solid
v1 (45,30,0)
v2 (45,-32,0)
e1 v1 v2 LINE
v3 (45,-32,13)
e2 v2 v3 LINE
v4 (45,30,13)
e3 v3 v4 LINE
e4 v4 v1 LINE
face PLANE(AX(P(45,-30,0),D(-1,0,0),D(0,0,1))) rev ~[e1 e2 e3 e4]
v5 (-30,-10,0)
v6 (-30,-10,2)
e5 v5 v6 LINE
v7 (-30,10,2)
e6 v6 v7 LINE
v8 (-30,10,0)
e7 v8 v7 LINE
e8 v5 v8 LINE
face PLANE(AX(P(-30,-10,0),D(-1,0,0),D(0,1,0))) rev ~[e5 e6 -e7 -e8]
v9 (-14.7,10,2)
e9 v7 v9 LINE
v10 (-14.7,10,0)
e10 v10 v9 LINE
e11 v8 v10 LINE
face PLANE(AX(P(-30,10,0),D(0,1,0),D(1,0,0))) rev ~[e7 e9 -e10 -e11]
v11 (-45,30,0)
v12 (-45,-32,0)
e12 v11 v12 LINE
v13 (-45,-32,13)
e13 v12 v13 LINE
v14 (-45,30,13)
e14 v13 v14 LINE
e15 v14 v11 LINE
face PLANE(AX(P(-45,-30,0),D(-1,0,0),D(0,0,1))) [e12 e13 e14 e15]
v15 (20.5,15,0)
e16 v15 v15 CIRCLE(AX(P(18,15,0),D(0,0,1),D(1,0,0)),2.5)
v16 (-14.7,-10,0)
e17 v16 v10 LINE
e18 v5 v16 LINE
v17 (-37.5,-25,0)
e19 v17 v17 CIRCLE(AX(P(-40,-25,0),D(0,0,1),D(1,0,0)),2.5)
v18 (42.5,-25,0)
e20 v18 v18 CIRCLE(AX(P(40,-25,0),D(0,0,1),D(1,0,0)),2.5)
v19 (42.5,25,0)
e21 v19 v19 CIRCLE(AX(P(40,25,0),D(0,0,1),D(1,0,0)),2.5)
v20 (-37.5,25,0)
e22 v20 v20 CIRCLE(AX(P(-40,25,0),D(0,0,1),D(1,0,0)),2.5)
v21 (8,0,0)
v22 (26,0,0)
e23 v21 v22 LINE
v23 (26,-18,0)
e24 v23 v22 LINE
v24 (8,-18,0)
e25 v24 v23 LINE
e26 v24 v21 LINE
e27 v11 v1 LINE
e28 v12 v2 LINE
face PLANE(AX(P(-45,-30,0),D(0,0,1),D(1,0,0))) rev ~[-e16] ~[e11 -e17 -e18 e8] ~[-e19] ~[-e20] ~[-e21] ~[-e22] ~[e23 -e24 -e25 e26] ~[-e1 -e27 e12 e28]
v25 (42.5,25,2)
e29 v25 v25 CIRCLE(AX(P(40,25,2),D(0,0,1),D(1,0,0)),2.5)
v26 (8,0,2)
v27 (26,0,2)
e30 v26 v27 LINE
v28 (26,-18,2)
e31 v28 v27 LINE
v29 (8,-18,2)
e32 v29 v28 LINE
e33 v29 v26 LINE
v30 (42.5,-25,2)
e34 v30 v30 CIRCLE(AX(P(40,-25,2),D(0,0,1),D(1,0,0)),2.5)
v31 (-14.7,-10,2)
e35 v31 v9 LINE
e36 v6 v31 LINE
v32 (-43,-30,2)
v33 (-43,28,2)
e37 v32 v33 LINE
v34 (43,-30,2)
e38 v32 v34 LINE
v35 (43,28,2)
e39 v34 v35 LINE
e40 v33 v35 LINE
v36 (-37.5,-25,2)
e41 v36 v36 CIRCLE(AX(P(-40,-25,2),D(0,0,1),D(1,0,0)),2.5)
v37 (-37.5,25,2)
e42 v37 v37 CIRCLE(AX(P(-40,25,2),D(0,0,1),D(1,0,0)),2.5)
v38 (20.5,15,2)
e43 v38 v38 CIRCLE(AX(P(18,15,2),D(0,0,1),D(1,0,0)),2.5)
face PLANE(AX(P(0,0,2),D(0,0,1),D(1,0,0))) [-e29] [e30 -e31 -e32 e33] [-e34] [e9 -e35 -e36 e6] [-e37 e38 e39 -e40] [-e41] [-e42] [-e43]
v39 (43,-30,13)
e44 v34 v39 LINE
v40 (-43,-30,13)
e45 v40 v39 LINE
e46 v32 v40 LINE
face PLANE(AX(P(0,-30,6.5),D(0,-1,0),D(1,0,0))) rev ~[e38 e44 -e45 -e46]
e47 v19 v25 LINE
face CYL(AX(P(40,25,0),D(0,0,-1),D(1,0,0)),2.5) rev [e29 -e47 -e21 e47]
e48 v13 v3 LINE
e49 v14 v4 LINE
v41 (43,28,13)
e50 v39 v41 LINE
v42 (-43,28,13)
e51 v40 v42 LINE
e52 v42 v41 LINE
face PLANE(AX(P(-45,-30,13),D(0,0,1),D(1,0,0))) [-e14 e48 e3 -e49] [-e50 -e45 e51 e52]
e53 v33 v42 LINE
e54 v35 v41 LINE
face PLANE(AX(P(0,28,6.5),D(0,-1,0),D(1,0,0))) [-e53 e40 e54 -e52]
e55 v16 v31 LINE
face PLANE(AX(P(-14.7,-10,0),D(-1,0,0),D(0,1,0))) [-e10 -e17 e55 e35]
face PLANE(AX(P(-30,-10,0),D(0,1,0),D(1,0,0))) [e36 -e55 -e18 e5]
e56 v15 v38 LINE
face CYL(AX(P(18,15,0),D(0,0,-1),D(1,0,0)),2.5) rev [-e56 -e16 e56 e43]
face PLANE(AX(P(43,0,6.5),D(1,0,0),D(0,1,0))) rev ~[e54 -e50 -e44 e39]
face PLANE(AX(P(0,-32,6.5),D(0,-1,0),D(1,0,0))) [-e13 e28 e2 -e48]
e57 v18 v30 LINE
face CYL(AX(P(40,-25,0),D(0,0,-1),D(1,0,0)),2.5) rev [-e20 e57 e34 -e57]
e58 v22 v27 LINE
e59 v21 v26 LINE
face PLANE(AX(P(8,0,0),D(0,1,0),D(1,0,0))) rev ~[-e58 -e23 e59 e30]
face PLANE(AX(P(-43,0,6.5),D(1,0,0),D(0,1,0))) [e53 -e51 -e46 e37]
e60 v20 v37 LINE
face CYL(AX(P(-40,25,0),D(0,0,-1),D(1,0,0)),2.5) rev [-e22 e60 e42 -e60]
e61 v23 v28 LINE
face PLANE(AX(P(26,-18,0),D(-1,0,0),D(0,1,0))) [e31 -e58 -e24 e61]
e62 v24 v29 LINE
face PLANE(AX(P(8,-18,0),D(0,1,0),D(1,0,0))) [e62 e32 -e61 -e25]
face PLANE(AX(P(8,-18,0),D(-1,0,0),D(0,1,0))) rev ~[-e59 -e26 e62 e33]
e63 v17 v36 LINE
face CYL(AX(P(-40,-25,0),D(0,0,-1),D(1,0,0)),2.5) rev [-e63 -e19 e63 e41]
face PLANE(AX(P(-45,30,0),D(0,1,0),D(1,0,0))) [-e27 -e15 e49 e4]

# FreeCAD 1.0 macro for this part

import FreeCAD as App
import Part
import Sketcher
from FreeCAD import Vector


def add_polygon(sketch, points):
    """Adds a closed chain of lines whose ends are joined by coincident constraints."""
    first, n = sketch.GeometryCount, len(points)
    for a, b in zip(points, points[1:] + points[:1]):
        sketch.addGeometry(Part.LineSegment(App.Vector(*a, 0), App.Vector(*b, 0)), False)
    for i in range(n):
        sketch.addConstraint(Sketcher.Constraint("Coincident", first + i, 2, first + (i + 1) % n, 1))

doc = App.newDocument("Part")
body = doc.addObject("PartDesign::Body", "Body")

sketch1 = doc.addObject("Sketcher::SketchObject", "Sketch")
body.addObject(sketch1)
sketch1.AttachmentSupport = (doc.XZ_Plane, [""])
sketch1.MapMode = "FlatFace"
add_polygon(sketch1, [(-45, 13), (-45, 0), (45, 0), (45, 13)])
sketch1.addConstraint([
    Sketcher.Constraint("Vertical", 0),
    Sketcher.Constraint("Horizontal", 1),
    Sketcher.Constraint("Vertical", 2),
    Sketcher.Constraint("Horizontal", 3),
    Sketcher.Constraint("Symmetric", 0, 2, 1, 2, -1, 1),
    Sketcher.Constraint("DistanceX", 1, 1, 1, 2, 90.0),
    Sketcher.Constraint("DistanceY", 0, 2, 0, 1, 13.0),
])
pad1 = doc.addObject("PartDesign::Pad", "Pad")
body.addObject(pad1)
pad1.Profile = sketch1
pad1.Length = 2
body2 = doc.addObject("PartDesign::Body", "Body001")
doc.recompute()

body.Placement = App.Placement(Vector(0, -30, 0), App.Rotation(Vector(0, 0, 1), 0))
boolean = doc.addObject("PartDesign::Boolean", "Boolean")
body2.addObject(boolean)
boolean.Type = "Fuse"
boolean.addObjects([body])
body3 = doc.addObject("PartDesign::Body", "Body002")

sketch2 = doc.addObject("Sketcher::SketchObject", "Sketch001")
body3.addObject(sketch2)
sketch2.AttachmentSupport = (doc.getObject("YZ_Plane002"), [""])
sketch2.MapMode = "FlatFace"
add_polygon(sketch2, [(-30, 13), (-30, 0), (30, 0), (30, 13)])
sketch2.addConstraint([
    Sketcher.Constraint("Vertical", 0),
    Sketcher.Constraint("Horizontal", 1),
    Sketcher.Constraint("Vertical", 2),
    Sketcher.Constraint("Horizontal", 3),
    Sketcher.Constraint("Symmetric", 0, 2, 1, 2, -1, 1),
    Sketcher.Constraint("DistanceX", 1, 1, 1, 2, 60.0),
    Sketcher.Constraint("DistanceY", 0, 2, 0, 1, 13.0),
])
pad2 = doc.addObject("PartDesign::Pad", "Pad001")
body3.addObject(pad2)
pad2.Profile = sketch2
pad2.Length = 2
body4 = doc.addObject("PartDesign::Body", "Body003")
doc.recompute()

body3.Placement = App.Placement(Vector(43, 0, 0), App.Rotation(Vector(0, 0, 1), 0))
boolean2 = doc.addObject("PartDesign::Boolean", "Boolean001")
body4.addObject(boolean2)
boolean2.Type = "Fuse"
boolean2.addObjects([body3])
body5 = doc.addObject("PartDesign::Body", "Body004")

sketch3 = doc.addObject("Sketcher::SketchObject", "Sketch002")
body5.addObject(sketch3)
sketch3.AttachmentSupport = (doc.getObject("XY_Plane004"), [""])
sketch3.MapMode = "FlatFace"
add_polygon(sketch3, [(-45, 30), (-45, -30), (45, -30), (45, 30)])
sketch3.addGeometry(Part.Circle(Vector(-40, -25, 0), Vector(0, 0, 1), 2.5), False)
sketch3.addGeometry(Part.Circle(Vector(40, -25, 0), Vector(0, 0, 1), 2.5), False)
add_polygon(sketch3, [(26, -18), (8, -18), (8, 0), (26, 0)])
add_polygon(sketch3, [(-14.7, -10), (-30, -10), (-30, 10), (-14.7, 10)])
sketch3.addGeometry(Part.Circle(Vector(-40, 25, 0), Vector(0, 0, 1), 2.5), False)
sketch3.addGeometry(Part.Circle(Vector(18, 15, 0), Vector(0, 0, 1), 2.5), False)
sketch3.addGeometry(Part.Circle(Vector(40, 25, 0), Vector(0, 0, 1), 2.5), False)
sketch3.addConstraint([
    Sketcher.Constraint("Vertical", 0),
    Sketcher.Constraint("Horizontal", 1),
    Sketcher.Constraint("Vertical", 2),
    Sketcher.Constraint("Horizontal", 3),
    Sketcher.Constraint("Horizontal", 6),
    Sketcher.Constraint("Vertical", 7),
    Sketcher.Constraint("Horizontal", 8),
    Sketcher.Constraint("Vertical", 9),
    Sketcher.Constraint("Horizontal", 10),
    Sketcher.Constraint("Vertical", 11),
    Sketcher.Constraint("Horizontal", 12),
    Sketcher.Constraint("Vertical", 13),
    Sketcher.Constraint("Equal", 4, 5),
    Sketcher.Constraint("Equal", 5, 14),
    Sketcher.Constraint("Equal", 14, 15),
    Sketcher.Constraint("Equal", 15, 16),
    Sketcher.Constraint("Symmetric", 5, 3, 14, 3, -1, 1),
    Sketcher.Constraint("Symmetric", 4, 3, 16, 3, -1, 1),
    Sketcher.Constraint("Symmetric", 0, 2, 2, 2, -1, 1),
    Sketcher.Constraint("Symmetric", 4, 3, 5, 3, -2),
    Sketcher.Constraint("PointOnObject", 7, 2, -1),
    Sketcher.Constraint("Equal", 8, 7),
    Sketcher.Constraint("Diameter", 4, 5.0),
    Sketcher.Constraint("DistanceX", 1, 1, 1, 2, 90.0),
    Sketcher.Constraint("DistanceX", 6, 2, 6, 1, 18.0),
    Sketcher.Constraint("DistanceY", 0, 2, 0, 1, 60.0),
    Sketcher.Constraint("DistanceY", 11, 1, 11, 2, 20.0),
    Sketcher.Constraint("DistanceX", 10, 2, 10, 1, 15.3),
    Sketcher.Constraint("DistanceX", 4, 3, -1, 1, 40.0),
    Sketcher.Constraint("DistanceY", 4, 3, -1, 1, 25.0),
    Sketcher.Constraint("DistanceX", -1, 1, 15, 3, 18.0),
    Sketcher.Constraint("DistanceY", -1, 1, 15, 3, 15.0),
    Sketcher.Constraint("DistanceX", -1, 1, 6, 2, 8.0),
    Sketcher.Constraint("DistanceX", 10, 2, -1, 1, 30.0),
    Sketcher.Constraint("DistanceY", 10, 2, -1, 1, 10.0),
])
pad3 = doc.addObject("PartDesign::Pad", "Pad002")
body5.addObject(pad3)
pad3.Profile = sketch3
pad3.Length = 2
body6 = doc.addObject("PartDesign::Body", "Body005")

sketch4 = doc.addObject("Sketcher::SketchObject", "Sketch003")
body6.addObject(sketch4)
sketch4.AttachmentSupport = (doc.getObject("XZ_Plane005"), [""])
sketch4.MapMode = "FlatFace"
add_polygon(sketch4, [(-45, 13), (-45, 0), (45, 0), (45, 13)])
sketch4.addConstraint([
    Sketcher.Constraint("Vertical", 0),
    Sketcher.Constraint("Horizontal", 1),
    Sketcher.Constraint("Vertical", 2),
    Sketcher.Constraint("Horizontal", 3),
    Sketcher.Constraint("Symmetric", 0, 2, 1, 2, -1, 1),
    Sketcher.Constraint("DistanceX", 1, 1, 1, 2, 90.0),
    Sketcher.Constraint("DistanceY", 0, 2, 0, 1, 13.0),
])
pad4 = doc.addObject("PartDesign::Pad", "Pad003")
body6.addObject(pad4)
pad4.Profile = sketch4
pad4.Length = 2
body7 = doc.addObject("PartDesign::Body", "Body006")
doc.recompute()

body6.Placement = App.Placement(Vector(0, 30, 0), App.Rotation(Vector(0, 0, 1), 0))
boolean3 = doc.addObject("PartDesign::Boolean", "Boolean002")
body7.addObject(boolean3)
boolean3.Type = "Fuse"
boolean3.addObjects([body6])
body8 = doc.addObject("PartDesign::Body", "Body007")
doc.recompute()

body8.BaseFeature = body5
doc.recompute()

body9 = doc.addObject("PartDesign::Body", "Body008")
body9.BaseFeature = body7
boolean4 = doc.addObject("PartDesign::Boolean", "Boolean003")
body8.addObject(boolean4)
boolean4.Type = "Fuse"
boolean4.addObjects([body9])
doc.recompute()

boolean5 = doc.addObject("PartDesign::Boolean", "Boolean004")
body8.addObject(boolean5)
boolean5.Type = "Fuse"
boolean5.addObjects([body4])
doc.recompute()

boolean6 = doc.addObject("PartDesign::Boolean", "Boolean005")
body8.addObject(boolean6)
boolean6.Type = "Fuse"
boolean6.addObjects([body5])
doc.recompute()

boolean7 = doc.addObject("PartDesign::Boolean", "Boolean006")
body8.addObject(boolean7)
boolean7.Type = "Fuse"
boolean7.addObjects([body7])
body10 = doc.addObject("PartDesign::Body", "Body009")
doc.recompute()

body10.BaseFeature = body8
doc.recompute()

body11 = doc.addObject("PartDesign::Body", "Body010")
body11.BaseFeature = body2
boolean8 = doc.addObject("PartDesign::Boolean", "Boolean007")
body10.addObject(boolean8)
boolean8.Type = "Fuse"
boolean8.addObjects([body11])
doc.recompute()
body12 = doc.addObject("PartDesign::Body", "Body011")

sketch5 = doc.addObject("Sketcher::SketchObject", "Sketch004")
body12.addObject(sketch5)
sketch5.AttachmentSupport = (doc.getObject("YZ_Plane011"), [""])
sketch5.MapMode = "FlatFace"
add_polygon(sketch5, [(-30, 13), (-30, 0), (30, 0), (30, 13)])
sketch5.addConstraint([
    Sketcher.Constraint("Vertical", 0),
    Sketcher.Constraint("Horizontal", 1),
    Sketcher.Constraint("Vertical", 2),
    Sketcher.Constraint("Horizontal", 3),
    Sketcher.Constraint("Symmetric", 0, 2, 1, 2, -1, 1),
    Sketcher.Constraint("DistanceX", 1, 1, 1, 2, 60.0),
    Sketcher.Constraint("DistanceY", 0, 2, 0, 1, 13.0),
])
pad5 = doc.addObject("PartDesign::Pad", "Pad004")
body12.addObject(pad5)
pad5.Profile = sketch5
pad5.Length = 2
body13 = doc.addObject("PartDesign::Body", "Body012")
doc.recompute()

body12.Placement = App.Placement(Vector(-45, 0, 0), App.Rotation(Vector(0, 0, 1), 0))
boolean9 = doc.addObject("PartDesign::Boolean", "Boolean008")
body13.addObject(boolean9)
boolean9.Type = "Fuse"
boolean9.addObjects([body12])
body14 = doc.addObject("PartDesign::Body", "Body013")
doc.recompute()

body14.BaseFeature = body10
doc.recompute()

body15 = doc.addObject("PartDesign::Body", "Body014")
body15.BaseFeature = body13
boolean10 = doc.addObject("PartDesign::Boolean", "Boolean009")
body14.addObject(boolean10)
boolean10.Type = "Fuse"
boolean10.addObjects([body15])
doc.recompute()

boolean11 = doc.addObject("PartDesign::Boolean", "Boolean010")
body14.addObject(boolean11)
boolean11.Type = "Fuse"
boolean11.addObjects([body10])
doc.recompute()

boolean12 = doc.addObject("PartDesign::Boolean", "Boolean011")
body14.addObject(boolean12)
boolean12.Type = "Fuse"
boolean12.addObjects([body13])
doc.recompute()

boolean13 = doc.addObject("PartDesign::Boolean", "Boolean012")
body14.addObject(boolean13)
boolean13.Type = "Fuse"
boolean13.addObjects([body8])
doc.recompute()

boolean14 = doc.addObject("PartDesign::Boolean", "Boolean013")
body14.addObject(boolean14)
boolean14.Type = "Fuse"
boolean14.addObjects([body2])

doc.recompute()
